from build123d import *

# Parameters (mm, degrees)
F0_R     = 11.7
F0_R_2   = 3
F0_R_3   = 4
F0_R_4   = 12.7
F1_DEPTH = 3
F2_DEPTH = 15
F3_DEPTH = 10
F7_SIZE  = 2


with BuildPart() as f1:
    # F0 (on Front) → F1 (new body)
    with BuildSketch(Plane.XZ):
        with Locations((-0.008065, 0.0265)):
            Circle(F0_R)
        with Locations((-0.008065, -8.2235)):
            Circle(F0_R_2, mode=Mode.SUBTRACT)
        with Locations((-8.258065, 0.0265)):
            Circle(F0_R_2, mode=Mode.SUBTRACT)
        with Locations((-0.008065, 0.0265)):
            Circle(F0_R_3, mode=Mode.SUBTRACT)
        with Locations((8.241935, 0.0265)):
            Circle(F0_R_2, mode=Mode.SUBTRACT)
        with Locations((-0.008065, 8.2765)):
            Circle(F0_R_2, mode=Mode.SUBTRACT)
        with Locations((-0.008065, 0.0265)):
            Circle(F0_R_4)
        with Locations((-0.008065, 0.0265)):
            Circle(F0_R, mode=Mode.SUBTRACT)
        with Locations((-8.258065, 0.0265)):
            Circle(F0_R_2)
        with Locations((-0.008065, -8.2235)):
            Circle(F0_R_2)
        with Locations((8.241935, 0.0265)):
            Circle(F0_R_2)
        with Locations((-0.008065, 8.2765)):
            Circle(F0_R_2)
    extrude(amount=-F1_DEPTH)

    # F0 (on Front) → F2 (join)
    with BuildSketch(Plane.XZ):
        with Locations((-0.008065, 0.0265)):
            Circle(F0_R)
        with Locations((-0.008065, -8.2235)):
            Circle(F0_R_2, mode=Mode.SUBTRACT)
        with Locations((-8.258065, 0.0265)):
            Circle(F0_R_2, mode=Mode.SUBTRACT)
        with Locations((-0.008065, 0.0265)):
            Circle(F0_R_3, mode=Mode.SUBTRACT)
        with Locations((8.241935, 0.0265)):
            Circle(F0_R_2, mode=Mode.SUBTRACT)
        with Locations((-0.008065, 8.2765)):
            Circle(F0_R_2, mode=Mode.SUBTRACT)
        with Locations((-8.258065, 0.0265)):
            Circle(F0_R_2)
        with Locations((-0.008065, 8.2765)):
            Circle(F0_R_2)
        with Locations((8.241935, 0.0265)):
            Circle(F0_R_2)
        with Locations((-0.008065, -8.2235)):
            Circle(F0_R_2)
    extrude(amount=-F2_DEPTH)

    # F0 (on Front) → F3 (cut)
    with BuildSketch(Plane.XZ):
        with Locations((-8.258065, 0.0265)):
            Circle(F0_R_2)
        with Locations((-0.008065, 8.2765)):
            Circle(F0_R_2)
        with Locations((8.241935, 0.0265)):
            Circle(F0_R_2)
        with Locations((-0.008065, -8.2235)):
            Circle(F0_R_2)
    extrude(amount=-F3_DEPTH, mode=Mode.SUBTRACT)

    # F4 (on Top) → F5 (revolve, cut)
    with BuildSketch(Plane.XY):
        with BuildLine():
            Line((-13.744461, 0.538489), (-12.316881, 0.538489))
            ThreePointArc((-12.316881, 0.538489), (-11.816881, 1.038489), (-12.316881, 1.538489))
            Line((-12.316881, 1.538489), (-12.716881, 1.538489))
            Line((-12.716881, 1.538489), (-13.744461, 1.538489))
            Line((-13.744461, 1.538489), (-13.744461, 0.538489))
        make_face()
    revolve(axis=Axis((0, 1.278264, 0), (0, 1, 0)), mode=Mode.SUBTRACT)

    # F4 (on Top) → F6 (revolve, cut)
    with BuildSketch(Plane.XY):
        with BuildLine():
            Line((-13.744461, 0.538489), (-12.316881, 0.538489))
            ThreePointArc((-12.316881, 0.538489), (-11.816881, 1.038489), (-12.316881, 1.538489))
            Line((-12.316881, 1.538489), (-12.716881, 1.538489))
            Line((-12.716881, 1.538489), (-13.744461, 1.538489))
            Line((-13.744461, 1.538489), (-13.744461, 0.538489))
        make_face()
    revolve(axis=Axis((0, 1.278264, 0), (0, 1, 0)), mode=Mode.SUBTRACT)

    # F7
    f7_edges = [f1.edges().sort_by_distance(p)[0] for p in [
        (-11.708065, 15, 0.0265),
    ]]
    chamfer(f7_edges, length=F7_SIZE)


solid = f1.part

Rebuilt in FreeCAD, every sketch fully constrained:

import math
import FreeCAD as App
import Part
import Sketcher
Q = App.Units.Quantity


def edges_at(feature, points):
    """Names of the edges that pass closest to the given points."""
    edges = feature.Shape.Edges
    near = lambda p: min(range(len(edges)), key=lambda i: edges[i].distToShape(Part.Vertex(*p))[0])
    return sorted({f"Edge{near(p) + 1}" for p in points})

doc = App.newDocument("Part")
body = doc.addObject("PartDesign::Body", "Body")
body.AllowCompound = True

# Sketch on XZ plane
sketch1 = body.newObject("Sketcher::SketchObject", "Sketch")
sketch1.AttachmentSupport = (doc.getObject("XZ_Plane"), [""])
sketch1.MapMode = "FlatFace"
sketch1.addGeometry(Part.Circle(App.Vector(-0.008065, 0.0265, 0), App.Vector(0, 0, 1), 12.7), False)
sketch1.addGeometry(Part.Circle(App.Vector(-0.008065, 0.0265, 0), App.Vector(0, 0, 1), 11.7), False)
sketch1.addGeometry(Part.Circle(App.Vector(-8.258065, 0.0265, 0), App.Vector(0, 0, 1), 3), False)
sketch1.addGeometry(Part.Circle(App.Vector(-0.008065, -8.2235, 0), App.Vector(0, 0, 1), 3), False)
sketch1.addGeometry(Part.Circle(App.Vector(8.241935, 0.0265, 0), App.Vector(0, 0, 1), 3), False)
sketch1.addGeometry(Part.Circle(App.Vector(-0.008065, 8.2765, 0), App.Vector(0, 0, 1), 3), False)
sketch1.addConstraint(Sketcher.Constraint("Coincident", 1, 3, 0, 3))
sketch1.addConstraint(Sketcher.Constraint("Equal", 2, 3))
sketch1.addConstraint(Sketcher.Constraint("Equal", 3, 4))
sketch1.addConstraint(Sketcher.Constraint("Equal", 4, 5))
sketch1.addConstraint(Sketcher.Constraint("Horizontal", 1, 3, 2, 3))
sketch1.addConstraint(Sketcher.Constraint("Horizontal", 2, 3, 4, 3))
sketch1.addConstraint(Sketcher.Constraint("Vertical", 1, 3, 3, 3))
sketch1.addConstraint(Sketcher.Constraint("Vertical", 3, 3, 5, 3))
sketch1.addConstraint(Sketcher.Constraint("Diameter", 2, Q("6 mm")))
sketch1.addConstraint(Sketcher.Constraint("Diameter", 0, Q("25.4 mm")))
sketch1.addConstraint(Sketcher.Constraint("Diameter", 1, Q("23.4 mm")))
sketch1.addConstraint(Sketcher.Constraint("DistanceX", 2, 3, 4, 3, Q("16.5 mm")))
sketch1.addConstraint(Sketcher.Constraint("DistanceY", 3, 3, 5, 3, Q("16.5 mm")))
sketch1.addConstraint(Sketcher.Constraint("DistanceX", 2, 3, 0, 3, Q("8.25 mm")))
sketch1.addConstraint(Sketcher.Constraint("DistanceY", 3, 3, 0, 3, Q("8.25 mm")))
sketch1.addConstraint(Sketcher.Constraint("DistanceY", -1, 1, 0, 3, Q("0.0265 mm")))
sketch1.addConstraint(Sketcher.Constraint("DistanceX", 0, 3, -1, 1, Q("0.008065 mm")))
pad1 = body.newObject("PartDesign::Pad", "Pad")
pad1.Profile = sketch1
pad1.Length = 3
pad1.Reversed = True

# Sketch on XZ plane
sketch2 = body.newObject("Sketcher::SketchObject", "Sketch001")
sketch2.AttachmentSupport = (doc.getObject("XZ_Plane"), [""])
sketch2.MapMode = "FlatFace"
sketch2.addGeometry(Part.Circle(App.Vector(-0.008065, 0.0265, 0), App.Vector(0, 0, 1), 11.7), False)
sketch2.addGeometry(Part.Circle(App.Vector(-0.008065, 0.0265, 0), App.Vector(0, 0, 1), 4), False)
sketch2.addConstraint(Sketcher.Constraint("Coincident", 1, 3, 0, 3))
sketch2.addConstraint(Sketcher.Constraint("Diameter", 1, Q("8 mm")))
sketch2.addConstraint(Sketcher.Constraint("Diameter", 0, Q("23.4 mm")))
sketch2.addConstraint(Sketcher.Constraint("DistanceY", -1, 1, 0, 3, Q("0.0265 mm")))
sketch2.addConstraint(Sketcher.Constraint("DistanceX", 0, 3, -1, 1, Q("0.008065 mm")))
pad2 = body.newObject("PartDesign::Pad", "Pad001")
pad2.Profile = sketch2
pad2.Length = 15
pad2.Reversed = True

# Sketch on XZ plane
sketch3 = body.newObject("Sketcher::SketchObject", "Sketch002")
sketch3.AttachmentSupport = (doc.getObject("XZ_Plane"), [""])
sketch3.MapMode = "FlatFace"
sketch3.addGeometry(Part.Circle(App.Vector(-8.258065, 0.0265, 0), App.Vector(0, 0, 1), 3), False)
sketch3.addGeometry(Part.Circle(App.Vector(-0.008065, 8.2765, 0), App.Vector(0, 0, 1), 3), False)
sketch3.addGeometry(Part.Circle(App.Vector(8.241935, 0.0265, 0), App.Vector(0, 0, 1), 3), False)
sketch3.addGeometry(Part.Circle(App.Vector(-0.008065, -8.2235, 0), App.Vector(0, 0, 1), 3), False)
sketch3.addConstraint(Sketcher.Constraint("Equal", 0, 1))
sketch3.addConstraint(Sketcher.Constraint("Equal", 1, 2))
sketch3.addConstraint(Sketcher.Constraint("Equal", 2, 3))
sketch3.addConstraint(Sketcher.Constraint("Horizontal", 0, 3, 2, 3))
sketch3.addConstraint(Sketcher.Constraint("Vertical", 1, 3, 3, 3))
sketch3.addConstraint(Sketcher.Constraint("Diameter", 0, Q("6 mm")))
sketch3.addConstraint(Sketcher.Constraint("DistanceX", 0, 3, 2, 3, Q("16.5 mm")))
sketch3.addConstraint(Sketcher.Constraint("DistanceY", 3, 3, 1, 3, Q("16.5 mm")))
sketch3.addConstraint(Sketcher.Constraint("DistanceX", 0, 3, 1, 3, Q("8.25 mm")))
sketch3.addConstraint(Sketcher.Constraint("DistanceY", 0, 3, 1, 3, Q("8.25 mm")))
sketch3.addConstraint(Sketcher.Constraint("DistanceY", -1, 1, 0, 3, Q("0.0265 mm")))
sketch3.addConstraint(Sketcher.Constraint("DistanceX", 0, 3, -1, 1, Q("8.258065 mm")))
pocket1 = body.newObject("PartDesign::Pocket", "Pocket")
pocket1.Profile = sketch3
pocket1.Length = 10

# Sketch on XY plane
sketch4 = body.newObject("Sketcher::SketchObject", "Sketch003")
sketch4.AttachmentSupport = (doc.getObject("XY_Plane"), [""])
sketch4.MapMode = "FlatFace"
sketch4.addGeometry(Part.LineSegment(App.Vector(-13.744461, 0.538489, 0), App.Vector(-12.316881, 0.538489, 0)), False)
sketch4.addGeometry(Part.ArcOfCircle(Part.Circle(App.Vector(-12.316881, 1.038489, 0), App.Vector(0, 0, 1), 0.5), math.radians(-90), math.radians(90)), False)
sketch4.addGeometry(Part.LineSegment(App.Vector(-12.316881, 1.538489, 0), App.Vector(-13.744461, 1.538489, 0)), False)
sketch4.addGeometry(Part.LineSegment(App.Vector(-13.744461, 1.538489, 0), App.Vector(-13.744461, 0.538489, 0)), False)
sketch4.addConstraint(Sketcher.Constraint("Tangent", 0, 2, 1, 1))
sketch4.addConstraint(Sketcher.Constraint("Tangent", 1, 2, 2, 1))
sketch4.addConstraint(Sketcher.Constraint("Coincident", 2, 2, 3, 1))
sketch4.addConstraint(Sketcher.Constraint("Coincident", 3, 2, 0, 1))
sketch4.addConstraint(Sketcher.Constraint("Horizontal", 0))
sketch4.addConstraint(Sketcher.Constraint("Horizontal", 2))
sketch4.addConstraint(Sketcher.Constraint("Vertical", 3))
sketch4.addConstraint(Sketcher.Constraint("Radius", 1, Q("0.5 mm")))
sketch4.addConstraint(Sketcher.Constraint("DistanceX", 0, 1, 0, 2, Q("1.42758 mm")))
sketch4.addConstraint(Sketcher.Constraint("DistanceX", 1, 3, -1, 1, Q("12.316881 mm")))
sketch4.addConstraint(Sketcher.Constraint("DistanceY", -1, 1, 1, 3, Q("1.038489 mm")))
groove = body.newObject("PartDesign::Groove", "Groove")
groove.Profile = sketch4
groove.ReferenceAxis = (sketch4, ["V_Axis"])
groove.Angle = 360

# Sketch on XY plane
sketch5 = body.newObject("Sketcher::SketchObject", "Sketch004")
sketch5.AttachmentSupport = (doc.getObject("XY_Plane"), [""])
sketch5.MapMode = "FlatFace"
sketch5.addGeometry(Part.LineSegment(App.Vector(-13.744461, 0.538489, 0), App.Vector(-12.316881, 0.538489, 0)), False)
sketch5.addGeometry(Part.ArcOfCircle(Part.Circle(App.Vector(-12.316881, 1.038489, 0), App.Vector(0, 0, 1), 0.5), math.radians(-90), math.radians(90)), False)
sketch5.addGeometry(Part.LineSegment(App.Vector(-12.316881, 1.538489, 0), App.Vector(-13.744461, 1.538489, 0)), False)
sketch5.addGeometry(Part.LineSegment(App.Vector(-13.744461, 1.538489, 0), App.Vector(-13.744461, 0.538489, 0)), False)
sketch5.addConstraint(Sketcher.Constraint("Tangent", 0, 2, 1, 1))
sketch5.addConstraint(Sketcher.Constraint("Tangent", 1, 2, 2, 1))
sketch5.addConstraint(Sketcher.Constraint("Coincident", 2, 2, 3, 1))
sketch5.addConstraint(Sketcher.Constraint("Coincident", 3, 2, 0, 1))
sketch5.addConstraint(Sketcher.Constraint("Horizontal", 0))
sketch5.addConstraint(Sketcher.Constraint("Horizontal", 2))
sketch5.addConstraint(Sketcher.Constraint("Vertical", 3))
sketch5.addConstraint(Sketcher.Constraint("Radius", 1, Q("0.5 mm")))
sketch5.addConstraint(Sketcher.Constraint("DistanceX", 0, 1, 0, 2, Q("1.42758 mm")))
sketch5.addConstraint(Sketcher.Constraint("DistanceX", 1, 3, -1, 1, Q("12.316881 mm")))
sketch5.addConstraint(Sketcher.Constraint("DistanceY", -1, 1, 1, 3, Q("1.038489 mm")))
groove2 = body.newObject("PartDesign::Groove", "Groove001")
groove2.Profile = sketch5
groove2.ReferenceAxis = (sketch5, ["V_Axis"])
groove2.Angle = 360
doc.recompute()

chamfer = body.newObject("PartDesign::Chamfer", "Chamfer")
chamfer.Base = (groove2, edges_at(groove2, [(-11.708, 15, 0.026)]))
chamfer.Size = 2

doc.recompute()
